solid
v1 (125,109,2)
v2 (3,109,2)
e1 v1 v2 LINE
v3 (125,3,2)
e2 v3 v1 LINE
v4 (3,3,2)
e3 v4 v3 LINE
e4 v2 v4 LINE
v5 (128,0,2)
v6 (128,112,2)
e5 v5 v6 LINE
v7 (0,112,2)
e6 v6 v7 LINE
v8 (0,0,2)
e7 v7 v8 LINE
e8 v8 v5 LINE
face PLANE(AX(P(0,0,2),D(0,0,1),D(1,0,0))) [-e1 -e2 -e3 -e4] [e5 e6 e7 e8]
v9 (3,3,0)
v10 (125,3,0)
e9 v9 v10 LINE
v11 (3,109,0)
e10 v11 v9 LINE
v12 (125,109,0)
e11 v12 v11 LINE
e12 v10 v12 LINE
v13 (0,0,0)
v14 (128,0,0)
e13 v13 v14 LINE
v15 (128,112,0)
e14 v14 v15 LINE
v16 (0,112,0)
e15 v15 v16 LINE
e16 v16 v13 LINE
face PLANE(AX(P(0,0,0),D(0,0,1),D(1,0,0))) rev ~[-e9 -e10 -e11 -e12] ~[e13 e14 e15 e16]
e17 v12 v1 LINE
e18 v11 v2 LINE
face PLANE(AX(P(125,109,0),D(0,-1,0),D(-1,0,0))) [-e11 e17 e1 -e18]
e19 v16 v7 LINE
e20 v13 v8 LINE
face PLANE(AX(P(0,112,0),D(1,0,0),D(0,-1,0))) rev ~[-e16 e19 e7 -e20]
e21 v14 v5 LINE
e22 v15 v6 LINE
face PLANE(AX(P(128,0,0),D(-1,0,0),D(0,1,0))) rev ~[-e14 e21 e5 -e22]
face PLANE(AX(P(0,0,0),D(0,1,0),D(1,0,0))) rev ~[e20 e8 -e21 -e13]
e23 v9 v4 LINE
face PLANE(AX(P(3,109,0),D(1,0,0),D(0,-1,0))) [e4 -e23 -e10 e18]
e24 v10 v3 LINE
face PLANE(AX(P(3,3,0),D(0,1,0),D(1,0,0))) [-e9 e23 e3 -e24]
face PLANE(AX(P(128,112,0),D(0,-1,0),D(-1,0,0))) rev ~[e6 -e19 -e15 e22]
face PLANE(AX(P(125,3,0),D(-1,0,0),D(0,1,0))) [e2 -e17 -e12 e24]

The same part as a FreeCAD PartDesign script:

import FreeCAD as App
import Part
import Sketcher

V = App.Vector
Q = App.Units.Quantity


def add_polygon(sketch, points):
    """Adds a closed chain of lines whose ends are joined by coincident constraints."""
    first, n = sketch.GeometryCount, len(points)
    for a, b in zip(points, points[1:] + points[:1]):
        sketch.addGeometry(Part.LineSegment(App.Vector(*a, 0), App.Vector(*b, 0)), False)
    for i in range(n):
        sketch.addConstraint(Sketcher.Constraint("Coincident", first + i, 2, first + (i + 1) % n, 1))

doc = App.newDocument("Part")
body = doc.addObject("PartDesign::Body", "Body")

# Sketch on XY plane
sketch1 = body.newObject("Sketcher::SketchObject", "Sketch")
sketch1.AttachmentSupport = (doc.getObject("XY_Plane"), [""])
sketch1.MapMode = "FlatFace"
add_polygon(sketch1, [(0, 112), (0, 0), (128, 0), (128, 112)])  # lines 0-3
add_polygon(sketch1, [(125, 3), (3, 3), (3, 109), (125, 109)])  # lines 4-7
sketch1.addConstraint([
    Sketcher.Constraint("Vertical", 0),
    Sketcher.Constraint("Horizontal", 1),
    Sketcher.Constraint("Vertical", 2),
    Sketcher.Constraint("Horizontal", 3),
    Sketcher.Constraint("Horizontal", 4),
    Sketcher.Constraint("Vertical", 5),
    Sketcher.Constraint("Horizontal", 6),
    Sketcher.Constraint("Vertical", 7),
    Sketcher.Constraint("Coincident", 0, 2, -1, 1),
    Sketcher.Constraint("DistanceX", 1, 1, 1, 2, Q("128 mm")),
    Sketcher.Constraint("DistanceY", 0, 2, 0, 1, Q("112 mm")),
    Sketcher.Constraint("DistanceX", -1, 1, 4, 2, Q("3 mm")),
    Sketcher.Constraint("DistanceY", -1, 1, 4, 2, Q("3 mm")),
    Sketcher.Constraint("DistanceY", 5, 2, 3, 2, Q("3 mm")),
    Sketcher.Constraint("DistanceX", 6, 2, 2, 2, Q("3 mm")),
])
pad1 = body.newObject("PartDesign::Pad", "Pad")
pad1.Profile = sketch1
pad1.Length = 2

doc.recompute()
